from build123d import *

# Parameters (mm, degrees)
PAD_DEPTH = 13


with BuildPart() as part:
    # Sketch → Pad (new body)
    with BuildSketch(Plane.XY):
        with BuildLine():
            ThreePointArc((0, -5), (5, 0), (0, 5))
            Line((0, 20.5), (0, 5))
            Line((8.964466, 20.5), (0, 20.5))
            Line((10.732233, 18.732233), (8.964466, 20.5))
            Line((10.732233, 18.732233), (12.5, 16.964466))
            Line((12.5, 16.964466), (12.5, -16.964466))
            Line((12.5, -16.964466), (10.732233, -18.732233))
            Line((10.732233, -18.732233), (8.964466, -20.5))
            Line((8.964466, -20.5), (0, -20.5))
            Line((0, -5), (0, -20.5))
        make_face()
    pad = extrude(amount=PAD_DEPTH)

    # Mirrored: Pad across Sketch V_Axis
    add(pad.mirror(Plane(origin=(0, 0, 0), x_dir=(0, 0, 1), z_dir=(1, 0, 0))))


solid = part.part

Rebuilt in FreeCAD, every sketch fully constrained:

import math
import FreeCAD as App
import Part
import Sketcher

doc = App.newDocument("Part")
body = doc.addObject("PartDesign::Body", "Body")

# Sketch on XY plane
sketch1 = body.newObject("Sketcher::SketchObject", "Sketch")
sketch1.AttachmentSupport = (doc.getObject("XY_Plane"), [""])
sketch1.MapMode = "FlatFace"
sketch1.addGeometry([
    Part.ArcOfCircle(Part.Circle(App.Vector(0, 0, 0), App.Vector(0, 0, 1), 5), math.radians(-90), math.radians(90)),  # 0
    Part.LineSegment(App.Vector(0, -5, 0), App.Vector(0, -20, 0)),  # 1
    Part.LineSegment(App.Vector(0, -20, 0), App.Vector(9, -20, 0)),  # 2
    Part.LineSegment(App.Vector(9, -20, 0), App.Vector(12, -17, 0)),  # 3
    Part.LineSegment(App.Vector(12, -17, 0), App.Vector(12, 17, 0)),  # 4
    Part.LineSegment(App.Vector(12, 17, 0), App.Vector(9, 20, 0)),  # 5
    Part.LineSegment(App.Vector(9, 20, 0), App.Vector(0, 20, 0)),  # 6
    Part.LineSegment(App.Vector(0, 20, 0), App.Vector(0, 5, 0)),  # 7
], False)
sketch1.addConstraint([
    Sketcher.Constraint("Coincident", 0, 1, 1, 1),
    Sketcher.Constraint("Coincident", 1, 2, 2, 1),
    Sketcher.Constraint("Coincident", 2, 2, 3, 1),
    Sketcher.Constraint("Coincident", 3, 2, 4, 1),
    Sketcher.Constraint("Coincident", 4, 2, 5, 1),
    Sketcher.Constraint("Coincident", 5, 2, 6, 1),
    Sketcher.Constraint("Coincident", 6, 2, 7, 1),
    Sketcher.Constraint("Coincident", 7, 2, 0, 2),
    Sketcher.Constraint("Vertical", 1),
    Sketcher.Constraint("Horizontal", 2),
    Sketcher.Constraint("Vertical", 4),
    Sketcher.Constraint("Horizontal", 6),
    Sketcher.Constraint("Vertical", 7),
    Sketcher.Constraint("Coincident", 0, 3, -1, 1),
    Sketcher.Constraint("Symmetric", 1, 2, 6, 2, -1, 1),
    Sketcher.Constraint("PointOnObject", 0, 1, -2),
    Sketcher.Constraint("Perpendicular", 3, 5),
    Sketcher.Constraint("Vertical", 2, 2, 5, 2),
    Sketcher.Constraint("Equal", 3, 5),
    Sketcher.Constraint("Radius", 0, 5.0),
    Sketcher.Constraint("Distance", 3, 5.0),
    Sketcher.Constraint("DistanceY", 1, 2, 1, 1, 15.5),
    Sketcher.Constraint("DistanceX", -1, 1, 3, 2, 12.5),
])
pad1 = body.newObject("PartDesign::Pad", "Pad")
pad1.Profile = sketch1
pad1.Length = 13
doc.recompute()

mirrored = body.newObject("PartDesign::Mirrored", "Mirrored")
mirrored.Originals = [pad1]
mirrored.MirrorPlane = (doc.getObject("YZ_Plane"), [""])
body.Tip = mirrored

doc.recompute()
